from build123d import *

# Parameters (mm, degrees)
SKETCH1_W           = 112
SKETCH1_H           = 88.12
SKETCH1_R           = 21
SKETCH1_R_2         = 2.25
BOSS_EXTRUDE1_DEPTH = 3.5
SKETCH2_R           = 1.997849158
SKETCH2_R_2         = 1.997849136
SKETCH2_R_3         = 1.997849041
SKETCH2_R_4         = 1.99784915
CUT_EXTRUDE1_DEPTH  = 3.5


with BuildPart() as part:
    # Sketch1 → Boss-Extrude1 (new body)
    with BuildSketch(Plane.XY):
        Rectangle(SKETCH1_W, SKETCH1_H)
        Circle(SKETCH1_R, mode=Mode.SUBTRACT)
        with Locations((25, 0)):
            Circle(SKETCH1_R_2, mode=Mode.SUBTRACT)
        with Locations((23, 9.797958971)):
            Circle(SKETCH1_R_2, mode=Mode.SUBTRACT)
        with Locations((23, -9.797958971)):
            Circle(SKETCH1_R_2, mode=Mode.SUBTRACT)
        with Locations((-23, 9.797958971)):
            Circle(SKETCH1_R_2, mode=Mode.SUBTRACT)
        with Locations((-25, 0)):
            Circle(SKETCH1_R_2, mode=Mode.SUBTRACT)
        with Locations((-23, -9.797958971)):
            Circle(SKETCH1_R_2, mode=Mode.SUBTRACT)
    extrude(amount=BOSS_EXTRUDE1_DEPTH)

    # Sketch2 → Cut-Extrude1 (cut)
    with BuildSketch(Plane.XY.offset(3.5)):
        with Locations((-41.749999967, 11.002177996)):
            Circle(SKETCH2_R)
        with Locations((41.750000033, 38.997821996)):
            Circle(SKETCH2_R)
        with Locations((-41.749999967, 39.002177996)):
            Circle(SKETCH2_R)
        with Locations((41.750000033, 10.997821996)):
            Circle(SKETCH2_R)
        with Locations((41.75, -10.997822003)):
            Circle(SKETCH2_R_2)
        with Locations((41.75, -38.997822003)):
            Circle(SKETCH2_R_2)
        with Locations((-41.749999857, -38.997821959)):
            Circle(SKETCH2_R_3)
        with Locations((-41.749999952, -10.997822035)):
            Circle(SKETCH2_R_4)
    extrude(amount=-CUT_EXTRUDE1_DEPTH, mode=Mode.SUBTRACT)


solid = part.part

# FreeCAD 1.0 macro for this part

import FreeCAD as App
import Part
import Sketcher
from FreeCAD import Vector

doc = App.newDocument("Part")
body = doc.addObject("PartDesign::Body", "Body")

# Sketch on XY plane
sketch1 = body.newObject("Sketcher::SketchObject", "Sketch")
sketch1.AttachmentSupport = (doc.getObject("XY_Plane"), [""])
sketch1.MapMode = "FlatFace"
sketch1.addGeometry([
    Part.LineSegment(Vector(-56, 44.1, 0), Vector(-56, -44.1, 0)),  # 0
    Part.LineSegment(Vector(-56, -44.1, 0), Vector(56, -44.1, 0)),  # 1
    Part.LineSegment(Vector(56, -44.1, 0), Vector(56, 44.1, 0)),  # 2
    Part.LineSegment(Vector(56, 44.1, 0), Vector(-56, 44.1, 0)),  # 3
    Part.Circle(Vector(-23, -9.8, 0), Vector(0, 0, 1), 2.2),  # 4
    Part.Circle(Vector(23, -9.8, 0), Vector(0, 0, 1), 2.2),  # 5
    Part.Circle(Vector(-25, 0, 0), Vector(0, 0, 1), 2.2),  # 6
    Part.Circle(Vector(-23, 9.8, 0), Vector(0, 0, 1), 2.2),  # 7
    Part.Circle(Vector(0, 0, 0), Vector(0, 0, 1), 21),  # 8
    Part.Circle(Vector(25, 0, 0), Vector(0, 0, 1), 2.2),  # 9
    Part.Circle(Vector(23, 9.8, 0), Vector(0, 0, 1), 2.2),  # 10
], False)
sketch1.addConstraint([
    Sketcher.Constraint("Coincident", 0, 2, 1, 1),
    Sketcher.Constraint("Coincident", 1, 2, 2, 1),
    Sketcher.Constraint("Coincident", 2, 2, 3, 1),
    Sketcher.Constraint("Coincident", 3, 2, 0, 1),
    Sketcher.Constraint("Vertical", 0),
    Sketcher.Constraint("Horizontal", 1),
    Sketcher.Constraint("Vertical", 2),
    Sketcher.Constraint("Horizontal", 3),
    Sketcher.Constraint("Coincident", 8, 3, -1, 1),
    Sketcher.Constraint("Equal", 4, 5),
    Sketcher.Constraint("Equal", 5, 6),
    Sketcher.Constraint("Equal", 6, 7),
    Sketcher.Constraint("Equal", 7, 9),
    Sketcher.Constraint("Equal", 9, 10),
    Sketcher.Constraint("Symmetric", 5, 3, 7, 3, -1, 1),
    Sketcher.Constraint("Symmetric", 6, 3, 9, 3, -1, 1),
    Sketcher.Constraint("Symmetric", 4, 3, 10, 3, -1, 1),
    Sketcher.Constraint("Symmetric", 0, 2, 2, 2, -1, 1),
    Sketcher.Constraint("Symmetric", 4, 3, 5, 3, -2),
    Sketcher.Constraint("PointOnObject", 6, 3, -1),
    Sketcher.Constraint("Diameter", 8, 42.0),
    Sketcher.Constraint("Diameter", 4, 4.5),
    Sketcher.Constraint("DistanceX", 1, 1, 1, 2, 112.0),
    Sketcher.Constraint("DistanceX", 4, 3, -1, 1, 23.0),
    Sketcher.Constraint("DistanceX", 6, 3, -1, 1, 25.0),
    Sketcher.Constraint("DistanceY", 0, 2, 0, 1, 88.12),
    Sketcher.Constraint("DistanceY", 4, 3, -1, 1, 9.797959),
])
pad1 = body.newObject("PartDesign::Pad", "Pad")
pad1.Profile = sketch1
pad1.Length = 3.5

# Sketch on XY plane
sketch2 = body.newObject("Sketcher::SketchObject", "Sketch001")
sketch2.AttachmentSupport = (doc.getObject("XY_Plane"), [""])
sketch2.MapMode = "FlatFace"
sketch2.AttachmentOffset = App.Placement(Vector(0, 0, 3.5), App.Rotation())
sketch2.addGeometry([
    Part.Circle(Vector(-41.7, 11, 0), Vector(0, 0, 1), 2),  # 0
    Part.Circle(Vector(41.8, 39, 0), Vector(0, 0, 1), 2),  # 1
    Part.Circle(Vector(-41.7, 39, 0), Vector(0, 0, 1), 2),  # 2
    Part.Circle(Vector(41.8, 11, 0), Vector(0, 0, 1), 2),  # 3
    Part.Circle(Vector(41.8, -11, 0), Vector(0, 0, 1), 2),  # 4
    Part.Circle(Vector(41.8, -39, 0), Vector(0, 0, 1), 2),  # 5
    Part.Circle(Vector(-41.7, -39, 0), Vector(0, 0, 1), 2),  # 6
    Part.Circle(Vector(-41.7, -11, 0), Vector(0, 0, 1), 2),  # 7
], False)
sketch2.addConstraint([
    Sketcher.Constraint("Equal", 0, 1),
    Sketcher.Constraint("Equal", 1, 2),
    Sketcher.Constraint("Equal", 2, 3),
    Sketcher.Constraint("Equal", 3, 4),
    Sketcher.Constraint("Equal", 4, 5),
    Sketcher.Constraint("Equal", 5, 6),
    Sketcher.Constraint("Equal", 6, 7),
    Sketcher.Constraint("Symmetric", 1, 3, 6, 3, -1, 1),
    Sketcher.Constraint("Symmetric", 3, 3, 7, 3, -1, 1),
    Sketcher.Constraint("Symmetric", 5, 3, 6, 3, -2),
    Sketcher.Constraint("Symmetric", 4, 3, 7, 3, -2),
    Sketcher.Constraint("Vertical", 0, 3, 2, 3),
    Sketcher.Constraint("Vertical", 1, 3, 3, 3),
    Sketcher.Constraint("Vertical", 2, 3, 6, 3),
    Sketcher.Constraint("DistanceY", 0, 3, 2, 3, 28.0),
    Sketcher.Constraint("DistanceY", 3, 3, 1, 3, 28.0),
    Sketcher.Constraint("DistanceY", 4, 3, 0, 3, 22.0),
    Sketcher.Constraint("Diameter", 0, 3.995698),
    Sketcher.Constraint("DistanceX", 0, 3, 1, 3, 83.5),
    Sketcher.Constraint("DistanceY", -1, 1, 1, 3, 38.997822),
])
pocket1 = body.newObject("PartDesign::Pocket", "Pocket")
pocket1.Profile = sketch2
pocket1.Length = 3.5

doc.recompute()
